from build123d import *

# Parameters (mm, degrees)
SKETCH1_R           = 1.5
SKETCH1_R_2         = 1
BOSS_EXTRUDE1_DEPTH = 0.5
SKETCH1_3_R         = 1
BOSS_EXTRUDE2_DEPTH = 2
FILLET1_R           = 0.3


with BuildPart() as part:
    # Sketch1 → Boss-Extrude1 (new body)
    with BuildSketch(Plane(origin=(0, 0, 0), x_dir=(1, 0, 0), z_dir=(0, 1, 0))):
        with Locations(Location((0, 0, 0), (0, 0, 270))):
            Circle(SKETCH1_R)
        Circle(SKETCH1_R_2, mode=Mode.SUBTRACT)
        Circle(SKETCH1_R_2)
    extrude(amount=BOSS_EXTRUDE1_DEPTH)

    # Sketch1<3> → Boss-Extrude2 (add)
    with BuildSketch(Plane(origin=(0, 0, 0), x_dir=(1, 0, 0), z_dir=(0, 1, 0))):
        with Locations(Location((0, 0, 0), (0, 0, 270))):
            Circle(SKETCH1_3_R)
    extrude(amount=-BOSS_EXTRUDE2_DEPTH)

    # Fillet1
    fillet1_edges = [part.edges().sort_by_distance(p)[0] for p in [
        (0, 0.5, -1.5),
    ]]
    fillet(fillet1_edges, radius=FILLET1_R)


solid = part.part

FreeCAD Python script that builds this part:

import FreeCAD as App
import Part
import Sketcher
from FreeCAD import Vector
Q = App.Units.Quantity


def edges_at(feature, points):
    """Names of the edges that pass closest to the given points."""
    edges = feature.Shape.Edges
    near = lambda p: min(range(len(edges)), key=lambda i: edges[i].distToShape(Part.Vertex(*p))[0])
    return sorted({f"Edge{near(p) + 1}" for p in points})

doc = App.newDocument("Part")
body = doc.addObject("PartDesign::Body", "Body")

sketch1 = body.newObject("Sketcher::SketchObject", "Sketch")
sketch1.AttachmentSupport = (doc.getObject("XZ_Plane"), [""])
sketch1.MapMode = "FlatFace"
sketch1.addGeometry(Part.Circle(Vector(0, 0, 0), Vector(0, 0, 1), 1.5), False)
sketch1.addConstraint(Sketcher.Constraint("Coincident", 0, 3, -1, 1))
sketch1.addConstraint(Sketcher.Constraint("Diameter", 0, Q("3 mm")))
pad1 = body.newObject("PartDesign::Pad", "Pad")
pad1.Profile = sketch1
pad1.Length = 0.5
pad1.Reversed = True

sketch2 = body.newObject("Sketcher::SketchObject", "Sketch001")
sketch2.AttachmentSupport = (doc.getObject("XZ_Plane"), [""])
sketch2.MapMode = "FlatFace"
sketch2.addGeometry(Part.Circle(Vector(0, 0, 0), Vector(0, 0, 1), 1), False)
sketch2.addConstraint(Sketcher.Constraint("Coincident", 0, 3, -1, 1))
sketch2.addConstraint(Sketcher.Constraint("Diameter", 0, Q("2 mm")))
pad2 = body.newObject("PartDesign::Pad", "Pad001")
pad2.Profile = sketch2
pad2.Length = 2
doc.recompute()

fillet = body.newObject("PartDesign::Fillet", "Fillet")
fillet.Base = (pad2, edges_at(pad2, [(0, 0.5, -1.5)]))
fillet.Radius = 0.3

doc.recompute()
